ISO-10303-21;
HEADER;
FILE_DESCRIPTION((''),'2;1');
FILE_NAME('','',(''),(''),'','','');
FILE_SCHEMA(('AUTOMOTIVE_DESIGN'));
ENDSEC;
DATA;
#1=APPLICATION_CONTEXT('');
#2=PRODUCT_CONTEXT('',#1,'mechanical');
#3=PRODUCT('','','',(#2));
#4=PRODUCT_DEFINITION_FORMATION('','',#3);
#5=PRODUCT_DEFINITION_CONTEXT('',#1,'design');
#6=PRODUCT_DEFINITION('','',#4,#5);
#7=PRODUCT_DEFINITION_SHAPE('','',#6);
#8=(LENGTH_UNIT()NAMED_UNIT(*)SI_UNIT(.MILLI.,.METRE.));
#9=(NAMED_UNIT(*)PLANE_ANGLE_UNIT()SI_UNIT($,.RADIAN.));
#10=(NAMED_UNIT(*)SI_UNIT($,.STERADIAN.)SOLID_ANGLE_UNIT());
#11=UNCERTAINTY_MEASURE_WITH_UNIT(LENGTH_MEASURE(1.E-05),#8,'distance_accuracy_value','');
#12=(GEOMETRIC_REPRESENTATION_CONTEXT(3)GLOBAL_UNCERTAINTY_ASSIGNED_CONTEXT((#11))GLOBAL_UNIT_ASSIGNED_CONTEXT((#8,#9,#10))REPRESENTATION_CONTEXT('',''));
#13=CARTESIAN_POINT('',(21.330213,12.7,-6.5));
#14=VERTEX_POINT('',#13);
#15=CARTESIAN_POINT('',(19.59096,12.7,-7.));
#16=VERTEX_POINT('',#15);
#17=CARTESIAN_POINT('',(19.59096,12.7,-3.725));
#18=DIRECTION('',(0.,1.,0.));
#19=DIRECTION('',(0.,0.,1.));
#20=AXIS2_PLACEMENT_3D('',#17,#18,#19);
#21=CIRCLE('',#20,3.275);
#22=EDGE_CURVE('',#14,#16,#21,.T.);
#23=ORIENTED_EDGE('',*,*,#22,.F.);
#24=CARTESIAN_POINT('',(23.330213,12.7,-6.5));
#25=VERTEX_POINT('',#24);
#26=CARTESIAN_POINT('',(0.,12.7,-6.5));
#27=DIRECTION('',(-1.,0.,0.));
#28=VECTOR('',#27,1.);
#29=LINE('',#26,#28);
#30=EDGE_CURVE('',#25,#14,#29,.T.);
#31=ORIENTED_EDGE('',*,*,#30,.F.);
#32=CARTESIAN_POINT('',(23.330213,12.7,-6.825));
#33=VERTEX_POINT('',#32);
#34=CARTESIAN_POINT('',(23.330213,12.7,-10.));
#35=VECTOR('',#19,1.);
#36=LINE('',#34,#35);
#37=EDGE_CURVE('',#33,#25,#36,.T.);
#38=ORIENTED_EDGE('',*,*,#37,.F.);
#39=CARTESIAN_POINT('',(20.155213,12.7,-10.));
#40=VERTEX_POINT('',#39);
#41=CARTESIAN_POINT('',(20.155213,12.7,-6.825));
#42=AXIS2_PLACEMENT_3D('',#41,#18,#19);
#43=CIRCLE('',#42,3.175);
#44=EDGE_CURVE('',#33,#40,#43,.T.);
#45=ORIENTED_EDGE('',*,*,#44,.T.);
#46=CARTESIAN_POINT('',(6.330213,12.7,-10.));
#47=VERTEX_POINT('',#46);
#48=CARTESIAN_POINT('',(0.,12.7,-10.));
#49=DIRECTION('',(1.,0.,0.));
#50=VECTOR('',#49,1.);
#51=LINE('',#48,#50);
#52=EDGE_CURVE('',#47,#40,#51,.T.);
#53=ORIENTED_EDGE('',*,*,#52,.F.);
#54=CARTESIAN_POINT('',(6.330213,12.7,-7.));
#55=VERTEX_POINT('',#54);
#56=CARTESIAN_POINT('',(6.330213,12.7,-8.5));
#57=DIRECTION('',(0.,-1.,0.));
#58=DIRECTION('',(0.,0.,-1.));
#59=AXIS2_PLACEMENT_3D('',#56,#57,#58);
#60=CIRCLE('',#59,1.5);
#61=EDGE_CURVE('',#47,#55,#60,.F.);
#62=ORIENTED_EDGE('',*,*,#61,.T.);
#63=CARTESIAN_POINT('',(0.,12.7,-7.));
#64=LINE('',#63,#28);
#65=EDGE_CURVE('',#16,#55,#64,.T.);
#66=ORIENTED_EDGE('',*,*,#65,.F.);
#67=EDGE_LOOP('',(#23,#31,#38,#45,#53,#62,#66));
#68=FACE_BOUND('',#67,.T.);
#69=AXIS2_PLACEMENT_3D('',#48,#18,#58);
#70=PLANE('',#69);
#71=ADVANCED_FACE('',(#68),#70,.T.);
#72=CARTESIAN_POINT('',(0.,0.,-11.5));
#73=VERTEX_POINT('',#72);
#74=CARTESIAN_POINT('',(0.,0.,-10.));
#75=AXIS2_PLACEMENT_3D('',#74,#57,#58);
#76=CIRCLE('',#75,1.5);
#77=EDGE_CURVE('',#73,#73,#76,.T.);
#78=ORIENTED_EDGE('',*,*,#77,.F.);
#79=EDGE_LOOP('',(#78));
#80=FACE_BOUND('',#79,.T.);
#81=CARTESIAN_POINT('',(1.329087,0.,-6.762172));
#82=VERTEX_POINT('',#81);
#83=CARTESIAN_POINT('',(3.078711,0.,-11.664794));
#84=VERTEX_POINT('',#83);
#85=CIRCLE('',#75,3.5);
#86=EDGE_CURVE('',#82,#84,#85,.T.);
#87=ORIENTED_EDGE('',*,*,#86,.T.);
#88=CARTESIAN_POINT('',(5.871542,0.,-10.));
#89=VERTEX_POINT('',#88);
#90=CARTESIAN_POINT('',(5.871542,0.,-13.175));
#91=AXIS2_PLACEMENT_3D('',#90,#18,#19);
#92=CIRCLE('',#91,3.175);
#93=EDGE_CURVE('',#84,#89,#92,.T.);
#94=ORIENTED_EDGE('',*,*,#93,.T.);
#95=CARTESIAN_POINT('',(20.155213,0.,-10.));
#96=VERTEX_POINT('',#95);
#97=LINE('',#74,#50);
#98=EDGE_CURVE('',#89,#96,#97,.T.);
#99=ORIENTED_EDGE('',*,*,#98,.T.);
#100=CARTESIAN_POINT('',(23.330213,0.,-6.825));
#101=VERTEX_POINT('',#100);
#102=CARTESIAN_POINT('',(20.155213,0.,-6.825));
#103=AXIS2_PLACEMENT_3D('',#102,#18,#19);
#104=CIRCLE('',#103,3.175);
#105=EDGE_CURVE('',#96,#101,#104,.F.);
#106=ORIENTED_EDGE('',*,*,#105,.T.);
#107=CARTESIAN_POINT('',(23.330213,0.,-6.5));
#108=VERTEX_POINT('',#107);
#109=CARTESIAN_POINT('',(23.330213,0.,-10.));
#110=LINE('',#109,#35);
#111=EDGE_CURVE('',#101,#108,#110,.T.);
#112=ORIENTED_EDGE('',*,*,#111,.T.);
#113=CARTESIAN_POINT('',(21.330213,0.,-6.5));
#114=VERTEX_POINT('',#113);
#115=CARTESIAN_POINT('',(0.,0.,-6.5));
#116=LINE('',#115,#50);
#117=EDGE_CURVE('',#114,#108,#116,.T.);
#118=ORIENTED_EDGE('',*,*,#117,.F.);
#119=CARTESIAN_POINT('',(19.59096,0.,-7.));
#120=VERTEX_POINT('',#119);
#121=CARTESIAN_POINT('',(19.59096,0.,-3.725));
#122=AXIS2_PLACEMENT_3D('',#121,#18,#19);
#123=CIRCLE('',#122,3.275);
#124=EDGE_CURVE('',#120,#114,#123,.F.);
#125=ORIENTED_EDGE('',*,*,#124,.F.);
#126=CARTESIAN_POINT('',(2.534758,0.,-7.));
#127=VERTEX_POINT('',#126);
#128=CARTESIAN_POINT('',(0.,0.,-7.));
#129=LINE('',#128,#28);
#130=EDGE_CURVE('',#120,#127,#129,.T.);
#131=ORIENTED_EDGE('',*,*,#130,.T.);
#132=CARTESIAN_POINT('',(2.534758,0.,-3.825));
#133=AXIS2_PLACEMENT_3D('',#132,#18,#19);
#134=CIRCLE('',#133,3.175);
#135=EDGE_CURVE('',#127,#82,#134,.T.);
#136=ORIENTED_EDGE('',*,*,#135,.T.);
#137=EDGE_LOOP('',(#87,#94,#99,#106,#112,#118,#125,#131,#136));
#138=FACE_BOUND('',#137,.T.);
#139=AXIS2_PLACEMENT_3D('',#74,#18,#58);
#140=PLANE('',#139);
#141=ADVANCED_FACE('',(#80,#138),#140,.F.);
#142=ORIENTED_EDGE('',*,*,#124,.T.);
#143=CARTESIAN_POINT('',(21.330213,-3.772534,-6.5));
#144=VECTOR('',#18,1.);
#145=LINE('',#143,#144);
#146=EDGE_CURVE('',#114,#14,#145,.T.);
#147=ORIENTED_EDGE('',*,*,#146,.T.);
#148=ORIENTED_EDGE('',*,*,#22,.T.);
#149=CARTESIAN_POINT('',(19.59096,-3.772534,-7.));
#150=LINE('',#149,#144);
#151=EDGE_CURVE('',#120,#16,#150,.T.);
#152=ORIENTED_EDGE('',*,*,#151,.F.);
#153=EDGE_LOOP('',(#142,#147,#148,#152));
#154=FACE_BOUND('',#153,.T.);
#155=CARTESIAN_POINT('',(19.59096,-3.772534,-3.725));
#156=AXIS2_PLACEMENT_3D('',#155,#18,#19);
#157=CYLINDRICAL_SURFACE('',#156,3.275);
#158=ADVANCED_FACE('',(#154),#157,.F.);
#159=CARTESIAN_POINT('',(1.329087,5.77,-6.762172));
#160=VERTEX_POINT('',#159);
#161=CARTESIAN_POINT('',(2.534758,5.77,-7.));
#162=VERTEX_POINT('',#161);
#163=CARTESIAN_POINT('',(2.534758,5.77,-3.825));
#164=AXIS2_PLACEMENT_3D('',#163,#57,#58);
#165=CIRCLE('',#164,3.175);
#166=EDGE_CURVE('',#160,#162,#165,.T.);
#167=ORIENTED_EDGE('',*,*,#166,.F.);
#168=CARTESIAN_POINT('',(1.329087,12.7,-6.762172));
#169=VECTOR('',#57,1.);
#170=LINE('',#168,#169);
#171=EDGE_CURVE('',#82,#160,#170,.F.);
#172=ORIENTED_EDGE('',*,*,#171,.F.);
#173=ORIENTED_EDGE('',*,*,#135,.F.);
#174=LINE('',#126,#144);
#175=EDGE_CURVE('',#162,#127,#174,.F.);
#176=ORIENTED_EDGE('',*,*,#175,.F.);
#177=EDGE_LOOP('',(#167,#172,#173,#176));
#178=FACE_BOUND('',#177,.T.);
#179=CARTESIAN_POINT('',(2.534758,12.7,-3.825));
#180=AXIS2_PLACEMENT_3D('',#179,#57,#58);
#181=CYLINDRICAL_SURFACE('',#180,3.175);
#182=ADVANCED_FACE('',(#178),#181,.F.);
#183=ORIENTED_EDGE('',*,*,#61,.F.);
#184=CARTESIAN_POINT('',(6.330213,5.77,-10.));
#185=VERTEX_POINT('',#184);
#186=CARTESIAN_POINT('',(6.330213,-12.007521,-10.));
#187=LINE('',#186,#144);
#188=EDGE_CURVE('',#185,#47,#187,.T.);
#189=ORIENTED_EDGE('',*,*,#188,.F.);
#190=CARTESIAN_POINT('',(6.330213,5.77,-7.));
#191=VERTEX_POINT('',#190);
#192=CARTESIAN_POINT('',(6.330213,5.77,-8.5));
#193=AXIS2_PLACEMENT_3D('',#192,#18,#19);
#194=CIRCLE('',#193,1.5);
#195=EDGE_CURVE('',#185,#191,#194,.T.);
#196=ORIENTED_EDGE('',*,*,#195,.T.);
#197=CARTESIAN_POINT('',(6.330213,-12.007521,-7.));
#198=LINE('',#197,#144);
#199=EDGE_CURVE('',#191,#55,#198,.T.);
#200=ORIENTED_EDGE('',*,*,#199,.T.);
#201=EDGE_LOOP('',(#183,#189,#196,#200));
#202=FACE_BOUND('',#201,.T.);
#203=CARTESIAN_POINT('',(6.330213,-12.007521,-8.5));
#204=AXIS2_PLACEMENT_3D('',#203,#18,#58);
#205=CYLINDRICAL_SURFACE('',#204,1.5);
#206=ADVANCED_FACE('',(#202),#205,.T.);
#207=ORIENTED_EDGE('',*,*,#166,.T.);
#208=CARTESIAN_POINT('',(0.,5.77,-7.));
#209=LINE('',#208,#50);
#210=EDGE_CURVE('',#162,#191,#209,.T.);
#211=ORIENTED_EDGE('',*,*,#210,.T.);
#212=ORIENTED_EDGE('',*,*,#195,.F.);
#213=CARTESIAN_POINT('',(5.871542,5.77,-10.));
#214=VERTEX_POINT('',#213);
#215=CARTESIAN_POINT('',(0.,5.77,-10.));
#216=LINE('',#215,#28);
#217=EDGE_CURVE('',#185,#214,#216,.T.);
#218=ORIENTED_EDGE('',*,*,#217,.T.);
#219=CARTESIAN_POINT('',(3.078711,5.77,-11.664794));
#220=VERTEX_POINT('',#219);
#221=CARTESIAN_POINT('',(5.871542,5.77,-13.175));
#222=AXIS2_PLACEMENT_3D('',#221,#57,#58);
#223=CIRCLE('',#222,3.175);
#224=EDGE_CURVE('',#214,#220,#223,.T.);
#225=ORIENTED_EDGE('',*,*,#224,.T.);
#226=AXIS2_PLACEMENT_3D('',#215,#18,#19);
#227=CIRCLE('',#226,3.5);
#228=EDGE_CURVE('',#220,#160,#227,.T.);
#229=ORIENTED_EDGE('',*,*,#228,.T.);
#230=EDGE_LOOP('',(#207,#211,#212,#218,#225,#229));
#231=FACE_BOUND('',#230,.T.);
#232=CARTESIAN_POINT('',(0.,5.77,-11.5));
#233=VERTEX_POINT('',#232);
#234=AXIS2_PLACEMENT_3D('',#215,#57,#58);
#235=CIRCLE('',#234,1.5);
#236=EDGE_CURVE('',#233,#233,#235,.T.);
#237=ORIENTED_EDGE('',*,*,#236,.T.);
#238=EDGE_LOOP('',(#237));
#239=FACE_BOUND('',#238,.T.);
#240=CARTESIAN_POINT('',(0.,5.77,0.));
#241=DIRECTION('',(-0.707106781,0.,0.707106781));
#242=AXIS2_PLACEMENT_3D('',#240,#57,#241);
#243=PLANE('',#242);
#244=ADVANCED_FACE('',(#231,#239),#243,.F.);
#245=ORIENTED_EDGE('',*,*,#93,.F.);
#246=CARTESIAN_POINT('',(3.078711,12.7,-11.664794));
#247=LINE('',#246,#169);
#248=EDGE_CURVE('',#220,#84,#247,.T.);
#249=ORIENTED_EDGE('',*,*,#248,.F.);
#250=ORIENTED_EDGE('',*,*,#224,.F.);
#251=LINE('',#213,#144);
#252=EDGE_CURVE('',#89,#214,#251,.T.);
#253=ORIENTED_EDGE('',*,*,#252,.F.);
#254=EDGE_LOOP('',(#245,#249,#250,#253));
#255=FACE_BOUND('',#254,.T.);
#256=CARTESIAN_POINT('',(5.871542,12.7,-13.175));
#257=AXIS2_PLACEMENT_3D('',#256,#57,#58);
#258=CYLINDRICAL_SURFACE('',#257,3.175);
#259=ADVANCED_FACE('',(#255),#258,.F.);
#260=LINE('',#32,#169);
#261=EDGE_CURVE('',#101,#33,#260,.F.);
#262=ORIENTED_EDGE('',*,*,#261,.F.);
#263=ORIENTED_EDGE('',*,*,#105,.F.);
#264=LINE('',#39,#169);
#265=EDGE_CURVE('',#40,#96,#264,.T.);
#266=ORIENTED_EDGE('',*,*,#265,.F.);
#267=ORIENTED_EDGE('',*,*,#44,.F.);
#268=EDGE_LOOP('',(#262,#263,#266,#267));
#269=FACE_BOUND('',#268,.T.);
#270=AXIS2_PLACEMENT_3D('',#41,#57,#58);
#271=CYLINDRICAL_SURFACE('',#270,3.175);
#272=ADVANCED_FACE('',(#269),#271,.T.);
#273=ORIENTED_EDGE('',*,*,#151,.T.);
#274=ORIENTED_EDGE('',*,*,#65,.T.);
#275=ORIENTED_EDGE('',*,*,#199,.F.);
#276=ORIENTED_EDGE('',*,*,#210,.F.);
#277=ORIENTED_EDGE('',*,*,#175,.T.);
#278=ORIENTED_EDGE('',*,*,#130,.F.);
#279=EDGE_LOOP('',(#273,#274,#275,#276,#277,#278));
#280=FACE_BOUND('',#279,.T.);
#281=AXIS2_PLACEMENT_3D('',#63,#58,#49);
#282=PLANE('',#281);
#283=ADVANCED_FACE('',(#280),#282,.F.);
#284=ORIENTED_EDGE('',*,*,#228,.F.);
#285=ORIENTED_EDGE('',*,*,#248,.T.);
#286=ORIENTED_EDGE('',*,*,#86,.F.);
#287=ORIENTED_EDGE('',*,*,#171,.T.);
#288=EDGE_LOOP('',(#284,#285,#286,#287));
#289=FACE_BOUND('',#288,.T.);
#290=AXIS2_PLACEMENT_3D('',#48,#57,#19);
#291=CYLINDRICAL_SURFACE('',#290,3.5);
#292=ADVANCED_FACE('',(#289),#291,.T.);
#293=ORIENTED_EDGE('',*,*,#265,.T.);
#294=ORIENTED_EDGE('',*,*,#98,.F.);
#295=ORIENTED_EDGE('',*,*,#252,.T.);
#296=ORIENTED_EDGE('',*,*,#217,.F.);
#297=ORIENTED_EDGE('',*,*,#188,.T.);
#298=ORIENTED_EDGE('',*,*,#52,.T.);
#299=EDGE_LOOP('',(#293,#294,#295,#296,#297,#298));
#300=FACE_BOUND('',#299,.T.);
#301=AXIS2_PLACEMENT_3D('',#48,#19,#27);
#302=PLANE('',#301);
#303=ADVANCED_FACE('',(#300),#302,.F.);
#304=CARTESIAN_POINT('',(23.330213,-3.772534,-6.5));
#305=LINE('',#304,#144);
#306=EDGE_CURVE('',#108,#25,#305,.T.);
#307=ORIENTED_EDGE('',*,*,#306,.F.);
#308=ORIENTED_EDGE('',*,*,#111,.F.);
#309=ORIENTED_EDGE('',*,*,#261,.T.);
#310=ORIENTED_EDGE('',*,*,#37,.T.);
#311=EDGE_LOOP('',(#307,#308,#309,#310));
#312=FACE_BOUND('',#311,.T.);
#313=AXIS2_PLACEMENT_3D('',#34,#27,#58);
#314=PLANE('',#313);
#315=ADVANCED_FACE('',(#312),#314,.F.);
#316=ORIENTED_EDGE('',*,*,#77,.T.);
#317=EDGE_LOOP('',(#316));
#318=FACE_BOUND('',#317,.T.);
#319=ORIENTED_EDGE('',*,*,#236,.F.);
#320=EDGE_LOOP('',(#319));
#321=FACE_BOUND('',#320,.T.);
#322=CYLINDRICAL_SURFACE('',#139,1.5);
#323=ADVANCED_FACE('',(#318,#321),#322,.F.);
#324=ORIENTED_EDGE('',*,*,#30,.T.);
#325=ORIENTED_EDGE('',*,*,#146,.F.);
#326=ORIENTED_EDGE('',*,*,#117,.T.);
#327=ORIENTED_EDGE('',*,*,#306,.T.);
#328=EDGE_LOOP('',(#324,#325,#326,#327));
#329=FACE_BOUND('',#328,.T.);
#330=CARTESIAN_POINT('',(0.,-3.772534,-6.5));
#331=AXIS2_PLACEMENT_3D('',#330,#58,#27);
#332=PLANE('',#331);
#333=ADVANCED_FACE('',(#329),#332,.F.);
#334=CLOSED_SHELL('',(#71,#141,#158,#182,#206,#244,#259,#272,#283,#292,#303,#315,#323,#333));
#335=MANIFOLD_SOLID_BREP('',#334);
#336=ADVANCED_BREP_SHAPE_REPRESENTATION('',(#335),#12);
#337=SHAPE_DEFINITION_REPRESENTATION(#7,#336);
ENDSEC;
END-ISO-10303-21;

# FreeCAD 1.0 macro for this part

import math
import FreeCAD as App
import Part
import Sketcher
from FreeCAD import Vector
Q = App.Units.Quantity


def edges_at(feature, points):
    """Names of the edges that pass closest to the given points."""
    edges = feature.Shape.Edges
    near = lambda p: min(range(len(edges)), key=lambda i: edges[i].distToShape(Part.Vertex(*p))[0])
    return sorted({f"Edge{near(p) + 1}" for p in points})

doc = App.newDocument("Part")
body = doc.addObject("PartDesign::Body", "Body")

sketch1 = body.newObject("Sketcher::SketchObject", "Sketch")
sketch1.AttachmentSupport = (doc.getObject("XZ_Plane"), [""])
sketch1.MapMode = "FlatFace"
sketch1.addGeometry([
    Part.ArcOfCircle(Part.Circle(Vector(0, 0, 0), Vector(0, 0, 1), 3.5), math.radians(0), math.radians(301)),
    Part.LineSegment(Vector(3.5, 0, 0), Vector(23.3, 0, 0)),
    Part.LineSegment(Vector(23.3, 0, 0), Vector(23.3, -3, 0)),
    Part.LineSegment(Vector(23.3, -3, 0), Vector(1.8, -3, 0)),
], False)
sketch1.addConstraint([
    Sketcher.Constraint("Coincident", 0, 1, 1, 1),
    Sketcher.Constraint("Coincident", 1, 2, 2, 1),
    Sketcher.Constraint("Coincident", 2, 2, 3, 1),
    Sketcher.Constraint("Coincident", 3, 2, 0, 2),
    Sketcher.Constraint("Horizontal", 1),
    Sketcher.Constraint("Vertical", 2),
    Sketcher.Constraint("Horizontal", 3),
    Sketcher.Constraint("Coincident", 0, 3, -1, 1),
    Sketcher.Constraint("PointOnObject", 0, 1, -1),
    Sketcher.Constraint("Radius", 0, Q("3.5 mm")),
    Sketcher.Constraint("DistanceY", 2, 2, 2, 1, Q("3 mm")),
    Sketcher.Constraint("DistanceX", 1, 1, 1, 2, Q("19.830213 mm")),
])
pad1 = body.newObject("PartDesign::Pad", "Pad")
pad1.Profile = sketch1
pad1.Length = 12.7
pad1.Reversed = True

sketch2 = body.newObject("Sketcher::SketchObject", "Sketch001")
sketch2.AttachmentSupport = (doc.getObject("XZ_Plane"), [""])
sketch2.MapMode = "FlatFace"
sketch2.AttachmentOffset = App.Placement(Vector(0, 0, -12.7), App.Rotation())
sketch2.addGeometry([
    Part.ArcOfCircle(Part.Circle(Vector(0.2, -1.5, 0), Vector(0, 0, 1), 6.3), math.radians(14), math.radians(346)),
    Part.ArcOfCircle(Part.Circle(Vector(6.3, -1.5, 0), Vector(0, 0, 1), 1.5), math.radians(90), math.radians(270)),
], False)
sketch2.addConstraint([
    Sketcher.Constraint("Coincident", 0, 1, 1, 1),
    Sketcher.Constraint("Coincident", 1, 2, 0, 2),
    Sketcher.Constraint("PointOnObject", 0, 1, -1),
    Sketcher.Constraint("Horizontal", 0, 3, 1, 3),
    Sketcher.Constraint("Vertical", 1, 3, 0, 1),
    Sketcher.Constraint("Radius", 1, Q("1.5 mm")),
    Sketcher.Constraint("Radius", 0, Q("6.330213 mm")),
    Sketcher.Constraint("DistanceX", -1, 1, 0, 3, Q("0.180286 mm")),
])
pocket1 = body.newObject("PartDesign::Pocket", "Pocket")
pocket1.Profile = sketch2
pocket1.Length = 6.93
pocket1.Reversed = True

sketch3 = body.newObject("Sketcher::SketchObject", "Sketch002")
sketch3.AttachmentSupport = (doc.getObject("XZ_Plane"), [""])
sketch3.MapMode = "FlatFace"
sketch3.AttachmentOffset = App.Placement(Vector(0, 0, -5.77), App.Rotation())
sketch3.addGeometry(Part.Circle(Vector(0, 0, 0), Vector(0, 0, 1), 1.5), False)
sketch3.addConstraint([
    Sketcher.Constraint("Coincident", 0, 3, -1, 1),
    Sketcher.Constraint("Diameter", 0, Q("3 mm")),
])
pocket2 = body.newObject("PartDesign::Pocket", "Pocket001")
pocket2.Profile = sketch3
pocket2.Type = "ThroughAll"
pocket2.Reversed = True
body2 = doc.addObject("PartDesign::Body", "Body001")
doc.recompute()

mirroring = doc.addObject("Part::Mirroring", "Mirroring")
mirroring.Source = body
mirroring.Base = Vector(0, 0, -5)
mirroring.Normal = Vector(0, 0, 1)
body2.BaseFeature = mirroring
doc.recompute()

sketch4 = body2.newObject("Sketcher::SketchObject", "Sketch003")
sketch4.AttachmentSupport = (doc.getObject("XY_Plane001"), [""])
sketch4.MapMode = "FlatFace"
sketch4.AttachmentOffset = App.Placement(Vector(0, 0, -7), App.Rotation())
sketch4.addGeometry([
    Part.Circle(Vector(59.3, -42.8, 0), Vector(0, 0, 1), 2),
    Part.Circle(Vector(59.3, -47.5, 0), Vector(0, 0, 1), 2),
], False)
sketch4.addConstraint([
    Sketcher.Constraint("Equal", 0, 1),
    Sketcher.Constraint("Vertical", 0, 3, 1, 3),
    Sketcher.Constraint("Diameter", 0, Q("4 mm")),
    Sketcher.Constraint("DistanceY", 1, 3, 0, 3, Q("4.7 mm")),
    Sketcher.Constraint("DistanceY", 0, 3, -1, 1, Q("42.831379 mm")),
    Sketcher.Constraint("DistanceX", -1, 1, 0, 3, Q("59.285262 mm")),
])
pocket3 = body2.newObject("PartDesign::Pocket", "Pocket002")
pocket3.Profile = sketch4
pocket3.Length = 10

sketch5 = body2.newObject("Sketcher::SketchObject", "Sketch004")
sketch5.AttachmentSupport = (doc.getObject("XZ_Plane001"), [""])
sketch5.MapMode = "FlatFace"
sketch5.AttachmentOffset = App.Placement(Vector(0, 0, -12.7), App.Rotation())
sketch5.addGeometry([
    Part.ArcOfCircle(Part.Circle(Vector(19.6, -3.7, 0), Vector(0, 0, 1), 3.3), math.radians(-90), math.radians(-58)),
    Part.LineSegment(Vector(21.3, -6.5, 0), Vector(23.3, -6.5, 0)),
    Part.LineSegment(Vector(23.3, -6.5, 0), Vector(23.3, -7, 0)),
    Part.LineSegment(Vector(23.3, -7, 0), Vector(19.6, -7, 0)),
], False)
sketch5.addConstraint([
    Sketcher.Constraint("Coincident", 0, 2, 1, 1),
    Sketcher.Constraint("Coincident", 1, 2, 2, 1),
    Sketcher.Constraint("Coincident", 2, 2, 3, 1),
    Sketcher.Constraint("Tangent", 3, 2, 0, 1),
    Sketcher.Constraint("Horizontal", 1),
    Sketcher.Constraint("Vertical", 2),
    Sketcher.Constraint("Horizontal", 3),
    Sketcher.Constraint("DistanceX", 1, 1, 1, 2, Q("2 mm")),
    Sketcher.Constraint("DistanceY", 2, 2, 2, 1, Q("0.5 mm")),
    Sketcher.Constraint("DistanceY", 2, 2, -1, 1, Q("7 mm")),
    Sketcher.Constraint("Radius", 0, Q("3.275 mm")),
    Sketcher.Constraint("DistanceX", -1, 1, 0, 3, Q("19.59096 mm")),
])
pad2 = body2.newObject("PartDesign::Pad", "Pad001")
pad2.Profile = sketch5
pad2.Length = 12.7
doc.recompute()

fillet = body2.newObject("PartDesign::Fillet", "Fillet")
fillet.Base = (pad2, edges_at(pad2, [(1.803, 2.885, -7), (3.5, 2.885, -10), (23.33, 6.35, -10)]))
fillet.Radius = 3.175

sketch6 = body2.newObject("Sketcher::SketchObject", "Sketch005")
sketch6.AttachmentSupport = (doc.getObject("XY_Plane001"), [""])
sketch6.MapMode = "FlatFace"
sketch6.AttachmentOffset = App.Placement(Vector(0, 0, -7), App.Rotation())
sketch6.addGeometry(Part.Circle(Vector(66.7, -45.2, 0), Vector(0, 0, 1), 1.6), False)
sketch6.addConstraint([
    Sketcher.Constraint("Diameter", 0, Q("3.17 mm")),
    Sketcher.Constraint("DistanceY", 0, 3, -1, 1, Q("45.181379 mm")),
    Sketcher.Constraint("DistanceX", -1, 1, 0, 3, Q("66.743933 mm")),
])
pocket4 = body2.newObject("PartDesign::Pocket", "Pocket003")
pocket4.Profile = sketch6
pocket4.Length = 1.5
body.Visibility = False
mirroring.Visibility = False

doc.recompute()
